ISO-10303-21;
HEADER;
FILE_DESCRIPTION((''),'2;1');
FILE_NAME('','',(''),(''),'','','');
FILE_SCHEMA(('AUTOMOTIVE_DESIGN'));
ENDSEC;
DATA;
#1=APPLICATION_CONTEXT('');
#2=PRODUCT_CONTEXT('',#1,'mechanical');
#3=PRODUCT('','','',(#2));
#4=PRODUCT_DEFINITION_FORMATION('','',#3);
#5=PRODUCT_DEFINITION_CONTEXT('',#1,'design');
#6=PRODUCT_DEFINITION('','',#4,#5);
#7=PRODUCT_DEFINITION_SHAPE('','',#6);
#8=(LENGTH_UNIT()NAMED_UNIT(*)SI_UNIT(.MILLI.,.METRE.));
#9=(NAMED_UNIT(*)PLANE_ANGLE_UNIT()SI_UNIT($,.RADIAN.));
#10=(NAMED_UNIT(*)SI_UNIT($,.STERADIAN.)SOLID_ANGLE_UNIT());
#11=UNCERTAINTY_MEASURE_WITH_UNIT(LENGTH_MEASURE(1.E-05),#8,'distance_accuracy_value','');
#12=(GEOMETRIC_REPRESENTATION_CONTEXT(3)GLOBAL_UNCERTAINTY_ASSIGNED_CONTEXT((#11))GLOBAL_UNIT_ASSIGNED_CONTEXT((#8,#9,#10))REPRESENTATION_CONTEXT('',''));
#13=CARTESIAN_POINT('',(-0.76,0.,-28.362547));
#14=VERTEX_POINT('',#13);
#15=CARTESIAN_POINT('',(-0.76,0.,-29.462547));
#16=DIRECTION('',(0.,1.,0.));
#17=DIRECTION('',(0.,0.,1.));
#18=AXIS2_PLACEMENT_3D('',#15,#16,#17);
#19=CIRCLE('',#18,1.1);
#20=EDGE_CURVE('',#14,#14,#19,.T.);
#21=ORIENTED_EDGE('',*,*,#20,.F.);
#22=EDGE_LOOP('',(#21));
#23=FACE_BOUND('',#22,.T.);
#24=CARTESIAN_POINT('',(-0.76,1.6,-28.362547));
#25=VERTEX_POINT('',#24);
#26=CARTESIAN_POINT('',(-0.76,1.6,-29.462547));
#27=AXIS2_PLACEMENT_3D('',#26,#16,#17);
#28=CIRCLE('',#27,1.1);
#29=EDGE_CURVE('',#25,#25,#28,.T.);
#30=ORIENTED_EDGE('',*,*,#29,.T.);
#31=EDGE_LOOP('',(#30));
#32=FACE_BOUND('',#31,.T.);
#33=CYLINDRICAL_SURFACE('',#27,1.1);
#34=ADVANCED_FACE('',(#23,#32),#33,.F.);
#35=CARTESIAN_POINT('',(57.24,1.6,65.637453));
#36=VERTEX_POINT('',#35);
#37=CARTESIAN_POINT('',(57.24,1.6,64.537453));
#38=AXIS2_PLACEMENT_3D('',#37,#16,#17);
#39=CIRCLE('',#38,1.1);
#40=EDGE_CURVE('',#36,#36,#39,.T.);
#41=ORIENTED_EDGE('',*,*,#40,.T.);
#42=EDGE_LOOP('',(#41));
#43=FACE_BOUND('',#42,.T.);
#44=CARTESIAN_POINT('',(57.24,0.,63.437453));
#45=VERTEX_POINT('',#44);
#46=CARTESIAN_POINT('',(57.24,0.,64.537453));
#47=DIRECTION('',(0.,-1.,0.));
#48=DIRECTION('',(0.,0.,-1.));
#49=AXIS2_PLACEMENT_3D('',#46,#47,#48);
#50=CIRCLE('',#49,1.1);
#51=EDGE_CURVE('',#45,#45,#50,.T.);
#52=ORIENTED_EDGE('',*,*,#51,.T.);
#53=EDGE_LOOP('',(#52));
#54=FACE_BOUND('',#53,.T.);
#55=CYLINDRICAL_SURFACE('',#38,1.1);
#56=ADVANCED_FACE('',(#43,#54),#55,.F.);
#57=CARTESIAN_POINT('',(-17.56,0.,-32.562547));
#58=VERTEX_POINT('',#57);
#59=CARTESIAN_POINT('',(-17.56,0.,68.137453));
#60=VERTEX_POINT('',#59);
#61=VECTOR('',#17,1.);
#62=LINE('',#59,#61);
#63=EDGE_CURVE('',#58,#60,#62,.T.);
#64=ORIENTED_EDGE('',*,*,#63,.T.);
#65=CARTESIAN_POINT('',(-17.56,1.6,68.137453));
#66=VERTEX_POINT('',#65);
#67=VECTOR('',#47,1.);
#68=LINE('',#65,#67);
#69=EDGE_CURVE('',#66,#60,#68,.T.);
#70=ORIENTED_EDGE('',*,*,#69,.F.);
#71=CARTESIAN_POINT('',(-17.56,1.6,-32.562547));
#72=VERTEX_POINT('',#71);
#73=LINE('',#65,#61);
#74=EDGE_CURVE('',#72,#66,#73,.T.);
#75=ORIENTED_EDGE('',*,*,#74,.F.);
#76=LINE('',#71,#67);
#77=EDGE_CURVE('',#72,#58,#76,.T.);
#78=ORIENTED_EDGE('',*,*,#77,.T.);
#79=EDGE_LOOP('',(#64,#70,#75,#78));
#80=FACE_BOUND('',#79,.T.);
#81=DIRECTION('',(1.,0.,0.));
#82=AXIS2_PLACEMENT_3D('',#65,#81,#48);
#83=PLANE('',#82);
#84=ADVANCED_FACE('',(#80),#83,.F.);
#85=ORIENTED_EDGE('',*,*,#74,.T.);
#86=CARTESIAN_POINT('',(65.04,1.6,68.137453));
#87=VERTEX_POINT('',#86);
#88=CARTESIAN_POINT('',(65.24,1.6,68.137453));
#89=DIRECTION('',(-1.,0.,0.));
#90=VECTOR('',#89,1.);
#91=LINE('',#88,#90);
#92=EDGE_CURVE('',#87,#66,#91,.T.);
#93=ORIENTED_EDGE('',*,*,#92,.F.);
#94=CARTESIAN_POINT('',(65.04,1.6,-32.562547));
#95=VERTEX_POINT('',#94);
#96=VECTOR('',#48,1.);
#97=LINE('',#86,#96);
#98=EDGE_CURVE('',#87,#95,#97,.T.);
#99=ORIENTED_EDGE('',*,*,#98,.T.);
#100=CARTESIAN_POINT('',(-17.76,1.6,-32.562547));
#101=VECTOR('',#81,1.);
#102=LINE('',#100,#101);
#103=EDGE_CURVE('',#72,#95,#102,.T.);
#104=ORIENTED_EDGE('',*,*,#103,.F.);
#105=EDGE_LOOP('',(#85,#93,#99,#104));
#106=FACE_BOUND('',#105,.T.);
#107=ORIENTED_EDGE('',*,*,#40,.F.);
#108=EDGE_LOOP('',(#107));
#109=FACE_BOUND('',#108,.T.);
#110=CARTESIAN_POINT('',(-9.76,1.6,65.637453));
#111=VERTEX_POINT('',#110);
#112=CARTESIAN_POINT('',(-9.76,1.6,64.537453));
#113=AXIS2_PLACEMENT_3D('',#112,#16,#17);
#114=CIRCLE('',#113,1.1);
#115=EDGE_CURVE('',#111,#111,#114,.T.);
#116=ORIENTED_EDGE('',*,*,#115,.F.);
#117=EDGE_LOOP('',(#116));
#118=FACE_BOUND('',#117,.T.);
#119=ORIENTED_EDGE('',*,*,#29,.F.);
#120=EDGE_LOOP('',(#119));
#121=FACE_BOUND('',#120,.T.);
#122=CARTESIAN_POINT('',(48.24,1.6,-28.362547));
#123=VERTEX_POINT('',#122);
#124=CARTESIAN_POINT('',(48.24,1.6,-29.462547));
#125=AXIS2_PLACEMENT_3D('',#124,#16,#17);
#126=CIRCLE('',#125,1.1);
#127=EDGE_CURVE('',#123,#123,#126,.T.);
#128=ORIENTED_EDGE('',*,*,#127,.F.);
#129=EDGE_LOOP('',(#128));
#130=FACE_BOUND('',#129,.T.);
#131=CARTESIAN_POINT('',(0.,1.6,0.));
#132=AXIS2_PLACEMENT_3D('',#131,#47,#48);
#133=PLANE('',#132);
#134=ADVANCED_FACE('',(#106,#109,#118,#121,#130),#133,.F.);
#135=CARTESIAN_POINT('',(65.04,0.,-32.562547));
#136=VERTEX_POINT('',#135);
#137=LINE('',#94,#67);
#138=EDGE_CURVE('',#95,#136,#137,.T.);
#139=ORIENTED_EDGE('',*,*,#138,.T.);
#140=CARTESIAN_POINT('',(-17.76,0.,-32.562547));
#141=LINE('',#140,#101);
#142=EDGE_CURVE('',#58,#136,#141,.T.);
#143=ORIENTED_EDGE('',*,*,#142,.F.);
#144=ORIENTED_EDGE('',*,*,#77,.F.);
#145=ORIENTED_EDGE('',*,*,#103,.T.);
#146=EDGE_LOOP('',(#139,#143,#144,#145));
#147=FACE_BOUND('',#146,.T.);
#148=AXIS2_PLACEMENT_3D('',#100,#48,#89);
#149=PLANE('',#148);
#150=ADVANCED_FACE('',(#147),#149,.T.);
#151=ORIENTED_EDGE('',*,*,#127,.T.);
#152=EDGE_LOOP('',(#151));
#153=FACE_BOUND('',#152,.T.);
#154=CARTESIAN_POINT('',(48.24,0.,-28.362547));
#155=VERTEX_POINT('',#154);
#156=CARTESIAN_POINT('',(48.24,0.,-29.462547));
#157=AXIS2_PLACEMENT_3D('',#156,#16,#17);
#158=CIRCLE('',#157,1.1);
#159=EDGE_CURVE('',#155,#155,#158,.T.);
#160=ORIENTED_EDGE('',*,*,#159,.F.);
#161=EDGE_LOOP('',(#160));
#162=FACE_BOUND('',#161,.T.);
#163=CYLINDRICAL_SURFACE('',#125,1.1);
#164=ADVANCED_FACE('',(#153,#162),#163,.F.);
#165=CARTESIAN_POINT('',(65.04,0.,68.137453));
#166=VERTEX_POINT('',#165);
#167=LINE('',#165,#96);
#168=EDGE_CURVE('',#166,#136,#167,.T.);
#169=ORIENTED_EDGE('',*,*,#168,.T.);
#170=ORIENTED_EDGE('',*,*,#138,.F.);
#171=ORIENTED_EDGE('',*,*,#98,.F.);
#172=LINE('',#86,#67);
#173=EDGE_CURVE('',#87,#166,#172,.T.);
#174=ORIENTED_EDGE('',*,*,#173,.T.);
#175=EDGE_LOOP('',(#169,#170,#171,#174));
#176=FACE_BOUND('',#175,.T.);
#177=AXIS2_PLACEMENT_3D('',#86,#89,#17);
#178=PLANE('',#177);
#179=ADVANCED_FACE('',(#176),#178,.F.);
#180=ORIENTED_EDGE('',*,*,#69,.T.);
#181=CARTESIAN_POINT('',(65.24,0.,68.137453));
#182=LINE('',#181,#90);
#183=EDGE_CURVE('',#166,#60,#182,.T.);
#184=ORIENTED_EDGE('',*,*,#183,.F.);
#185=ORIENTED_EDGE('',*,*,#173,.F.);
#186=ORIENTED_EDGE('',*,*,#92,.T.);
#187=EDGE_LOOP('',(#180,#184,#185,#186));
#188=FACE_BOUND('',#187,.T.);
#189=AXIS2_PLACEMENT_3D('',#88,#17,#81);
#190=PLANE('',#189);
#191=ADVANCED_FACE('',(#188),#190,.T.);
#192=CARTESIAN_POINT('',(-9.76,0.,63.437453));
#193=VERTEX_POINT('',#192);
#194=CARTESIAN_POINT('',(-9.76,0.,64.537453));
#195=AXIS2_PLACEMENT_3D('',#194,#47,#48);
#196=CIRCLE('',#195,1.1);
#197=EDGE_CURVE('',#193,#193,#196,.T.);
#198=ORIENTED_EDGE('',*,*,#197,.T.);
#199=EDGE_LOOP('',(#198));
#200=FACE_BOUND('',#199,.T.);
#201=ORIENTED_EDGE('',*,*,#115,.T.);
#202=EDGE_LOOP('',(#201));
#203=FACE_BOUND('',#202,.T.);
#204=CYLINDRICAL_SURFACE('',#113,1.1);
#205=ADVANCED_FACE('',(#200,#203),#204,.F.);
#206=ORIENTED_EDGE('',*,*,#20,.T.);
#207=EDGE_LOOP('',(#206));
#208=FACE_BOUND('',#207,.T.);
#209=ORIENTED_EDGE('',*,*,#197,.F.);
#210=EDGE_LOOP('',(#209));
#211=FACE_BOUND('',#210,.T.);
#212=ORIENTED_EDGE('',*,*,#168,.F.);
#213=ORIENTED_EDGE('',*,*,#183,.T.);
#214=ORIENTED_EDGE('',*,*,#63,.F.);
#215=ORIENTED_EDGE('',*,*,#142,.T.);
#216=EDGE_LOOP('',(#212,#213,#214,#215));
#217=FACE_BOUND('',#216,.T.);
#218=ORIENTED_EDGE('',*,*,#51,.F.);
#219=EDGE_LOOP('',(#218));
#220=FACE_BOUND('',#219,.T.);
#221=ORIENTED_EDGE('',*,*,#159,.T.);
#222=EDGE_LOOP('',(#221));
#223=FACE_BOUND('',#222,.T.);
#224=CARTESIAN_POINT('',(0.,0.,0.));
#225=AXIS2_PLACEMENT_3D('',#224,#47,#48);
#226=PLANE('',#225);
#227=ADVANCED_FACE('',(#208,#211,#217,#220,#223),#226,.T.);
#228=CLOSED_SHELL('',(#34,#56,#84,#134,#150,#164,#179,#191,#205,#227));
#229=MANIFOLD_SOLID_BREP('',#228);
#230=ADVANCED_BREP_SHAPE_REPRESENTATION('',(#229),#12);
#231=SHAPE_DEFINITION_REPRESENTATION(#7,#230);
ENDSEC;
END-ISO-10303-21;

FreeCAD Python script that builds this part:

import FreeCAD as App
import Part
import Sketcher

doc = App.newDocument("Part")
body = doc.addObject("PartDesign::Body", "Body")

# Sketch on XZ plane
sketch1 = body.newObject("Sketcher::SketchObject", "Sketch")
sketch1.AttachmentSupport = (doc.getObject("XZ_Plane"), [""])
sketch1.MapMode = "FlatFace"
sketch1.addGeometry(Part.LineSegment(App.Vector(65, 68, 0), App.Vector(65, -33, 0)), False)
sketch1.addGeometry(Part.LineSegment(App.Vector(65, -33, 0), App.Vector(-18, -33, 0)), False)
sketch1.addGeometry(Part.LineSegment(App.Vector(-18, -33, 0), App.Vector(-18, 68, 0)), False)
sketch1.addGeometry(Part.LineSegment(App.Vector(-18, 68, 0), App.Vector(65, 68, 0)), False)
sketch1.addConstraint(Sketcher.Constraint("Coincident", 0, 2, 1, 1))
sketch1.addConstraint(Sketcher.Constraint("Coincident", 1, 2, 2, 1))
sketch1.addConstraint(Sketcher.Constraint("Coincident", 2, 2, 3, 1))
sketch1.addConstraint(Sketcher.Constraint("Coincident", 3, 2, 0, 1))
sketch1.addConstraint(Sketcher.Constraint("Vertical", 0))
sketch1.addConstraint(Sketcher.Constraint("Horizontal", 1))
sketch1.addConstraint(Sketcher.Constraint("Vertical", 2))
sketch1.addConstraint(Sketcher.Constraint("Horizontal", 3))
sketch1.addConstraint(Sketcher.Constraint("DistanceX", 1, 2, 1, 1, 83.0))
sketch1.addConstraint(Sketcher.Constraint("DistanceY", 0, 2, 0, 1, 100.7))
sketch1.addConstraint(Sketcher.Constraint("DistanceX", -1, 1, 0, 2, 65.24))
sketch1.addConstraint(Sketcher.Constraint("DistanceY", 0, 2, -1, 1, 32.562547))
pad1 = body.newObject("PartDesign::Pad", "Pad")
pad1.Profile = sketch1
pad1.Length = 1.6
pad1.Reversed = True

# Sketch on XZ plane
sketch2 = body.newObject("Sketcher::SketchObject", "Sketch001")
sketch2.AttachmentSupport = (doc.getObject("XZ_Plane"), [""])
sketch2.MapMode = "FlatFace"
sketch2.AttachmentOffset = App.Placement(App.Vector(0, 0, -1.6), App.Rotation())
sketch2.addGeometry(Part.Circle(App.Vector(-0.8, -29.5, 0), App.Vector(0, 0, 1), 1.1), False)
sketch2.addGeometry(Part.Circle(App.Vector(48.2, -29.5, 0), App.Vector(0, 0, 1), 1.1), False)
sketch2.addConstraint(Sketcher.Constraint("Equal", 0, 1))
sketch2.addConstraint(Sketcher.Constraint("Horizontal", 0, 3, 1, 3))
sketch2.addConstraint(Sketcher.Constraint("Diameter", 0, 2.2))
sketch2.addConstraint(Sketcher.Constraint("DistanceX", 0, 3, 1, 3, 49.0))
sketch2.addConstraint(Sketcher.Constraint("DistanceX", 0, 3, -1, 1, 0.76))
sketch2.addConstraint(Sketcher.Constraint("DistanceY", 0, 3, -1, 1, 29.462547))
doc.recompute()
hole = body.newObject("PartDesign::Hole", "Hole")
hole.Profile = sketch2
hole.ThreadType = "None"
hole.Diameter = 2.2
hole.DepthType = "ThroughAll"
hole.Reversed = True

# Sketch on XZ plane
sketch3 = body.newObject("Sketcher::SketchObject", "Sketch002")
sketch3.AttachmentSupport = (doc.getObject("XZ_Plane"), [""])
sketch3.MapMode = "FlatFace"
sketch3.AttachmentOffset = App.Placement(App.Vector(0, 0, -1.6), App.Rotation())
sketch3.addGeometry(Part.Circle(App.Vector(-9.8, 64.5, 0), App.Vector(0, 0, 1), 1.1), False)
sketch3.addGeometry(Part.Circle(App.Vector(57.2, 64.5, 0), App.Vector(0, 0, 1), 1.1), False)
sketch3.addConstraint(Sketcher.Constraint("Equal", 0, 1))
sketch3.addConstraint(Sketcher.Constraint("Horizontal", 0, 3, 1, 3))
sketch3.addConstraint(Sketcher.Constraint("Diameter", 0, 2.2))
sketch3.addConstraint(Sketcher.Constraint("DistanceX", 0, 3, 1, 3, 67.0))
sketch3.addConstraint(Sketcher.Constraint("DistanceX", 0, 3, -1, 1, 9.76))
sketch3.addConstraint(Sketcher.Constraint("DistanceY", -1, 1, 0, 3, 64.537453))
doc.recompute()
hole2 = body.newObject("PartDesign::Hole", "Hole001")
hole2.Profile = sketch3
hole2.ThreadType = "None"
hole2.Diameter = 2.2
hole2.DepthType = "Dimension"
hole2.Depth = 2
hole2.DrillPoint = "Flat"
hole2.Reversed = True

# Sketch on XZ plane
sketch4 = body.newObject("Sketcher::SketchObject", "Sketch003")
sketch4.AttachmentSupport = (doc.getObject("XZ_Plane"), [""])
sketch4.MapMode = "FlatFace"
sketch4.addGeometry(Part.LineSegment(App.Vector(-17.76, 68.14, 0), App.Vector(-17.76, -32.56, 0)), False)
sketch4.addGeometry(Part.LineSegment(App.Vector(-17.76, -32.56, 0), App.Vector(-17.56, -32.56, 0)), False)
sketch4.addGeometry(Part.LineSegment(App.Vector(-17.56, -32.56, 0), App.Vector(-17.56, 68.14, 0)), False)
sketch4.addGeometry(Part.LineSegment(App.Vector(-17.56, 68.14, 0), App.Vector(-17.76, 68.14, 0)), False)
sketch4.addGeometry(Part.LineSegment(App.Vector(65.04, 68.14, 0), App.Vector(65.04, -32.56, 0)), False)
sketch4.addGeometry(Part.LineSegment(App.Vector(65.04, -32.56, 0), App.Vector(65.24, -32.56, 0)), False)
sketch4.addGeometry(Part.LineSegment(App.Vector(65.24, -32.56, 0), App.Vector(65.24, 68.14, 0)), False)
sketch4.addGeometry(Part.LineSegment(App.Vector(65.24, 68.14, 0), App.Vector(65.04, 68.14, 0)), False)
sketch4.addConstraint(Sketcher.Constraint("Coincident", 0, 2, 1, 1))
sketch4.addConstraint(Sketcher.Constraint("Coincident", 1, 2, 2, 1))
sketch4.addConstraint(Sketcher.Constraint("Coincident", 2, 2, 3, 1))
sketch4.addConstraint(Sketcher.Constraint("Coincident", 3, 2, 0, 1))
sketch4.addConstraint(Sketcher.Constraint("Coincident", 4, 2, 5, 1))
sketch4.addConstraint(Sketcher.Constraint("Coincident", 5, 2, 6, 1))
sketch4.addConstraint(Sketcher.Constraint("Coincident", 6, 2, 7, 1))
sketch4.addConstraint(Sketcher.Constraint("Coincident", 7, 2, 4, 1))
sketch4.addConstraint(Sketcher.Constraint("Vertical", 0))
sketch4.addConstraint(Sketcher.Constraint("Horizontal", 1))
sketch4.addConstraint(Sketcher.Constraint("Vertical", 2))
sketch4.addConstraint(Sketcher.Constraint("Horizontal", 3))
sketch4.addConstraint(Sketcher.Constraint("Vertical", 4))
sketch4.addConstraint(Sketcher.Constraint("Horizontal", 5))
sketch4.addConstraint(Sketcher.Constraint("Vertical", 6))
sketch4.addConstraint(Sketcher.Constraint("Horizontal", 7))
sketch4.addConstraint(Sketcher.Constraint("Horizontal", 1, 2, 4, 2))
sketch4.addConstraint(Sketcher.Constraint("Horizontal", 3, 2, 6, 2))
sketch4.addConstraint(Sketcher.Constraint("Equal", 3, 5))
sketch4.addConstraint(Sketcher.Constraint("DistanceX", 1, 1, 1, 2, 0.2))
sketch4.addConstraint(Sketcher.Constraint("DistanceY", 0, 2, 0, 1, 100.7))
sketch4.addConstraint(Sketcher.Constraint("DistanceX", 0, 2, 5, 2, 83.0))
sketch4.addConstraint(Sketcher.Constraint("DistanceX", 0, 2, -1, 1, 17.76))
sketch4.addConstraint(Sketcher.Constraint("DistanceY", 0, 2, -1, 1, 32.562547))
pocket1 = body.newObject("PartDesign::Pocket", "Pocket")
pocket1.Profile = sketch4
pocket1.Type = "ThroughAll"

doc.recompute()
